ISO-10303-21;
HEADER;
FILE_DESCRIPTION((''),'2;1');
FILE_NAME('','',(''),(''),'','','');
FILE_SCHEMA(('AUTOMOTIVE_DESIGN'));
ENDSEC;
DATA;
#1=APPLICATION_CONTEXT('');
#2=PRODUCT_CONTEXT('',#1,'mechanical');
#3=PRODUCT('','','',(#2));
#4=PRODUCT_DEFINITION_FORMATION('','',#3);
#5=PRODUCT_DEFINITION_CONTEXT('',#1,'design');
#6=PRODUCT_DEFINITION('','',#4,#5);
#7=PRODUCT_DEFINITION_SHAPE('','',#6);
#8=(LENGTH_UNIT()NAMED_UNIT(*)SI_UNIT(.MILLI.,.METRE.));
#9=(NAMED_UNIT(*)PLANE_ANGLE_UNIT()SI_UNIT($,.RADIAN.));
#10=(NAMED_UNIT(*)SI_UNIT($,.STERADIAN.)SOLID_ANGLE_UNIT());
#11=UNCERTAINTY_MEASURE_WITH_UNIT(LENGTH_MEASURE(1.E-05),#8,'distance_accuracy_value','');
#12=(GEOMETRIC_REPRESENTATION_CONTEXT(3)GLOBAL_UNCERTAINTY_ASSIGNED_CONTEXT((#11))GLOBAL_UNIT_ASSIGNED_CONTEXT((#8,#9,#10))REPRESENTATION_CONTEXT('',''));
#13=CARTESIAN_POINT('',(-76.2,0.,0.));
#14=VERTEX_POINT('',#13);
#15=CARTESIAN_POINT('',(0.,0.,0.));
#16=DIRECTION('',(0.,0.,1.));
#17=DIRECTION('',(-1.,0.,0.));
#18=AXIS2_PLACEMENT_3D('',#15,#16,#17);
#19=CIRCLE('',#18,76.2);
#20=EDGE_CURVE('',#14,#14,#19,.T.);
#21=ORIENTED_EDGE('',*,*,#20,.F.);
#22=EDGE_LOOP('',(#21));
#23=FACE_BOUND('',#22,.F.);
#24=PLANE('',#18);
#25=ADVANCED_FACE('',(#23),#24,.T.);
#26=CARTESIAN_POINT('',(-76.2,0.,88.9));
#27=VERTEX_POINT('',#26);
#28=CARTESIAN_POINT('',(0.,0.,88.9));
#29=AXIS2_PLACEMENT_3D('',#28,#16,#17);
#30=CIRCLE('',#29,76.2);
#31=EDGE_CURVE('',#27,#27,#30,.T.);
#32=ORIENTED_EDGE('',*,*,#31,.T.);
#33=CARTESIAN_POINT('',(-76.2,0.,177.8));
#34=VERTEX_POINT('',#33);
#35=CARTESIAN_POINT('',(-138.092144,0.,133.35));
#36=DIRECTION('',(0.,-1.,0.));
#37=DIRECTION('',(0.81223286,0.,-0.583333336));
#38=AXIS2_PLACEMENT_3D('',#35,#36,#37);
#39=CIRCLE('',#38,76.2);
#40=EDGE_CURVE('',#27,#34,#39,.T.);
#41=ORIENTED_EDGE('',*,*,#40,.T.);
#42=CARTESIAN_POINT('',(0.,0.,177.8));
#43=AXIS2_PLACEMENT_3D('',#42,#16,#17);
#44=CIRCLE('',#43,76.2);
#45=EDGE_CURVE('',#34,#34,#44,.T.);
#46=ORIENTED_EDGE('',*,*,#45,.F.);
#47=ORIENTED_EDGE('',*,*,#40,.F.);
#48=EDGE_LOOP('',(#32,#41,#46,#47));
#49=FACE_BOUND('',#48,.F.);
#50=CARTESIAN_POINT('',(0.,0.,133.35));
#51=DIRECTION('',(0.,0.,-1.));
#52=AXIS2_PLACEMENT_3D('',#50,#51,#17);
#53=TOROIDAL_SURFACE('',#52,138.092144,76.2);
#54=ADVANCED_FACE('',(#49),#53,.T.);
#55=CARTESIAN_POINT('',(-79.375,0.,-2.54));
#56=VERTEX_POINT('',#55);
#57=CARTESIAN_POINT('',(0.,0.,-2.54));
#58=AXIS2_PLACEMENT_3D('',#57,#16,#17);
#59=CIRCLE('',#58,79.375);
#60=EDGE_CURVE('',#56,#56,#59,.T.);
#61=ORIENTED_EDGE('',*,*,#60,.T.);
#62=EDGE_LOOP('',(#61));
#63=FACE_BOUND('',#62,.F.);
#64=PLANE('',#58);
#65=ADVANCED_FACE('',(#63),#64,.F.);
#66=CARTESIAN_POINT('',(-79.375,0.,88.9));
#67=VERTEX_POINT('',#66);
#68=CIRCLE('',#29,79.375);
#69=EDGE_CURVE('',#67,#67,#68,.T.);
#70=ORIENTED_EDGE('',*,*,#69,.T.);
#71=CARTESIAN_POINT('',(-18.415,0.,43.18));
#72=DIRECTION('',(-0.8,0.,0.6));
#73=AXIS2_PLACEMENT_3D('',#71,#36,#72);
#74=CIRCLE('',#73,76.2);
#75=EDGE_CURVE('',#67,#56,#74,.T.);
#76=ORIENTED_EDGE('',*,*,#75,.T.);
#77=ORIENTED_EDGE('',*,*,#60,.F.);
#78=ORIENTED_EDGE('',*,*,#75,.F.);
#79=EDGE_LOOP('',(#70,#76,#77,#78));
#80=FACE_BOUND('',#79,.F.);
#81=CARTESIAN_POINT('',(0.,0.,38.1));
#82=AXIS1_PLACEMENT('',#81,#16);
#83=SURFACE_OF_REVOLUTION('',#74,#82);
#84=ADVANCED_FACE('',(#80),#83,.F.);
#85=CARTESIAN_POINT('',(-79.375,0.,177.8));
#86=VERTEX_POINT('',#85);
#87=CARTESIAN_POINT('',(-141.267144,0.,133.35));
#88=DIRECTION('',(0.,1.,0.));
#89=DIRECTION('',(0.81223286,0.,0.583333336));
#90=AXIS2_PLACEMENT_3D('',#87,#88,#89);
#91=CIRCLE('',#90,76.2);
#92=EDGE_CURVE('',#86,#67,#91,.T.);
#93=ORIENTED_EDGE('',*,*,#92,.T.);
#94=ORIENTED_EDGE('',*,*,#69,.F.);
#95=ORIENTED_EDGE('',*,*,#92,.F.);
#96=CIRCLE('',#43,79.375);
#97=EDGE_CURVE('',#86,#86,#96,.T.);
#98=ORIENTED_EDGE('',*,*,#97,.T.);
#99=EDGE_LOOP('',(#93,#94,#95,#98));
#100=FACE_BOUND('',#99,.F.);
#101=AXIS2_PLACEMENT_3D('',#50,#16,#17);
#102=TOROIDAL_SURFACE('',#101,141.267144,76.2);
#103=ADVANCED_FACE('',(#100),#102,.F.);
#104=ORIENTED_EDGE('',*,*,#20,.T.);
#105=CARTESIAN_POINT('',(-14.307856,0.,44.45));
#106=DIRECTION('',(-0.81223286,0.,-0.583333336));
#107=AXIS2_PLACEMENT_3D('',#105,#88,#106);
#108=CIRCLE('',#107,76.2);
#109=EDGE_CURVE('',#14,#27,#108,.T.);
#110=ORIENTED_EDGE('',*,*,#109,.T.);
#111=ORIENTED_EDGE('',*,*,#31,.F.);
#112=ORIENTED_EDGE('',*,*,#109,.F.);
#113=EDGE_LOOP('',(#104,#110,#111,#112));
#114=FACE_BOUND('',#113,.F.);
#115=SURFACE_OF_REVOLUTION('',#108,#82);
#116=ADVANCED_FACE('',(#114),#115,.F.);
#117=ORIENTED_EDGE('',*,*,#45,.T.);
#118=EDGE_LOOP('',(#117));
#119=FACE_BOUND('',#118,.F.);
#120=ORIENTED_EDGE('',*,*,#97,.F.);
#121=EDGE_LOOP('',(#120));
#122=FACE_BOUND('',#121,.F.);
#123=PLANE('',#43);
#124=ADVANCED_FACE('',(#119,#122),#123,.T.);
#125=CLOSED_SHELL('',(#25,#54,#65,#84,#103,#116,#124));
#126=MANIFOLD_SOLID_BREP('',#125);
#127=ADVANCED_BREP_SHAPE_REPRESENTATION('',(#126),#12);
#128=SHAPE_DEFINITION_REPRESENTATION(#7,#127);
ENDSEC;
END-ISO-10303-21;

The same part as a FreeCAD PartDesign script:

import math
import FreeCAD as App
import Part
import Sketcher
Q = App.Units.Quantity

doc = App.newDocument("Part")
body = doc.addObject("PartDesign::Body", "Body")

# Sketch on XZ plane
sketch1 = body.newObject("Sketcher::SketchObject", "Sketch")
sketch1.AttachmentSupport = (doc.getObject("XZ_Plane"), [""])
sketch1.MapMode = "FlatFace"
sketch1.addGeometry(Part.ArcOfCircle(Part.Circle(App.Vector(-14.3, 44.5, 0), App.Vector(0, 0, 1), 76.2), math.radians(144), math.radians(216)), False)
sketch1.addGeometry(Part.ArcOfCircle(Part.Circle(App.Vector(-138.1, 133.3, 0), App.Vector(0, 0, 1), 76.2), math.radians(-36), math.radians(36)), False)
sketch1.addGeometry(Part.LineSegment(App.Vector(-76.2, 177.8, 0), App.Vector(-79.4, 177.8, 0)), False)
sketch1.addGeometry(Part.ArcOfCircle(Part.Circle(App.Vector(-141.3, 133.3, 0), App.Vector(0, 0, 1), 76.2), math.radians(-36), math.radians(36)), False)
sketch1.addGeometry(Part.ArcOfCircle(Part.Circle(App.Vector(-18.4, 43.2, 0), App.Vector(0, 0, 1), 76.2), math.radians(143), math.radians(217)), False)
sketch1.addGeometry(Part.LineSegment(App.Vector(-79.4, -2.5, 0), App.Vector(0, -2.5, 0)), False)
sketch1.addGeometry(Part.LineSegment(App.Vector(0, -2.5, 0), App.Vector(0, 0, 0)), False)
sketch1.addGeometry(Part.LineSegment(App.Vector(0, 0, 0), App.Vector(-76.2, 0, 0)), False)
sketch1.addConstraint(Sketcher.Constraint("Tangent", 0, 1, 1, 1))
sketch1.addConstraint(Sketcher.Constraint("Coincident", 1, 2, 2, 1))
sketch1.addConstraint(Sketcher.Constraint("Coincident", 2, 2, 3, 2))
sketch1.addConstraint(Sketcher.Constraint("Coincident", 3, 1, 4, 1))
sketch1.addConstraint(Sketcher.Constraint("Coincident", 4, 2, 5, 1))
sketch1.addConstraint(Sketcher.Constraint("Coincident", 5, 2, 6, 1))
sketch1.addConstraint(Sketcher.Constraint("Coincident", 6, 2, 7, 1))
sketch1.addConstraint(Sketcher.Constraint("Coincident", 7, 2, 0, 2))
sketch1.addConstraint(Sketcher.Constraint("Horizontal", 2))
sketch1.addConstraint(Sketcher.Constraint("Horizontal", 5))
sketch1.addConstraint(Sketcher.Constraint("Vertical", 6))
sketch1.addConstraint(Sketcher.Constraint("Horizontal", 7))
sketch1.addConstraint(Sketcher.Constraint("Coincident", 6, 2, -1, 1))
sketch1.addConstraint(Sketcher.Constraint("Equal", 0, 1))
sketch1.addConstraint(Sketcher.Constraint("Equal", 1, 3))
sketch1.addConstraint(Sketcher.Constraint("Equal", 3, 4))
sketch1.addConstraint(Sketcher.Constraint("Horizontal", 1, 3, 3, 3))
sketch1.addConstraint(Sketcher.Constraint("Horizontal", 0, 1, 3, 1))
sketch1.addConstraint(Sketcher.Constraint("Vertical", 0, 1, 1, 2))
sketch1.addConstraint(Sketcher.Constraint("Vertical", 3, 1, 4, 2))
sketch1.addConstraint(Sketcher.Constraint("Vertical", 1, 2, 7, 2))
sketch1.addConstraint(Sketcher.Constraint("Radius", 0, Q("3 in")))
sketch1.addConstraint(Sketcher.Constraint("DistanceX", 7, 2, 7, 1, Q("3 in")))
sketch1.addConstraint(Sketcher.Constraint("DistanceY", 6, 1, 6, 2, Q("0.1 in")))
sketch1.addConstraint(Sketcher.Constraint("DistanceY", -1, 1, 1, 2, Q("7 in")))
sketch1.addConstraint(Sketcher.Constraint("DistanceX", 2, 2, 2, 1, Q("0.125 in")))
revolution = body.newObject("PartDesign::Revolution", "Revolution")
revolution.Profile = sketch1
revolution.ReferenceAxis = (sketch1, ["V_Axis"])
revolution.Angle = 360

doc.recompute()
